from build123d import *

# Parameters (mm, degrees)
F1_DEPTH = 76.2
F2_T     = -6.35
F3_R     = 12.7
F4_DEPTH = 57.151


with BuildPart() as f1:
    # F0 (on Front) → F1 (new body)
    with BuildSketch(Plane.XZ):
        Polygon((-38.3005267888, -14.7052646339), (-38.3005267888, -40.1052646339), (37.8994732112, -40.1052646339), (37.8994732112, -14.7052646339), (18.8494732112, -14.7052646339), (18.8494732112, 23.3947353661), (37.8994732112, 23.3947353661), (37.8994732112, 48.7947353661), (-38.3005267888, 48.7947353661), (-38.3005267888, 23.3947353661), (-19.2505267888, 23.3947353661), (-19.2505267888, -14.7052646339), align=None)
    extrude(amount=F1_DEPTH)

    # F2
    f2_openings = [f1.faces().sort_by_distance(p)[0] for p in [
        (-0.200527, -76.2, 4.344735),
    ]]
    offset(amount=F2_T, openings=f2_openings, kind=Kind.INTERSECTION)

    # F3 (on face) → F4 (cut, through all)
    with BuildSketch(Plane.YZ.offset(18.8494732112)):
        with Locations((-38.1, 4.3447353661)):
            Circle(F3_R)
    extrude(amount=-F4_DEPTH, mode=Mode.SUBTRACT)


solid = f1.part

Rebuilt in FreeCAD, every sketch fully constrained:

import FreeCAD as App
import Part
import Sketcher
Q = App.Units.Quantity


def faces_at(feature, points):
    """Names of the faces that lie closest to the given points."""
    faces = feature.Shape.Faces
    near = lambda p: min(range(len(faces)), key=lambda i: faces[i].distToShape(Part.Vertex(*p))[0])
    return sorted({f"Face{near(p) + 1}" for p in points})

doc = App.newDocument("Part")
body = doc.addObject("PartDesign::Body", "Body")

# Sketch on XZ plane
sketch1 = doc.addObject("Sketcher::SketchObject", "Sketch")
body.addObject(sketch1)
sketch1.AttachmentSupport = (doc.XZ_Plane, [""])
sketch1.MapMode = "FlatFace"
sketch1.addGeometry(Part.LineSegment(App.Vector(-38.300527, -14.705265, 0), App.Vector(-38.300527, -40.105265, 0)), False)
sketch1.addGeometry(Part.LineSegment(App.Vector(-38.300527, -40.105265, 0), App.Vector(37.899473, -40.105265, 0)), False)
sketch1.addGeometry(Part.LineSegment(App.Vector(37.899473, -40.105265, 0), App.Vector(37.899473, -14.705265, 0)), False)
sketch1.addGeometry(Part.LineSegment(App.Vector(37.899473, -14.705265, 0), App.Vector(18.849473, -14.705265, 0)), False)
sketch1.addGeometry(Part.LineSegment(App.Vector(18.849473, -14.705265, 0), App.Vector(18.849473, 23.394735, 0)), False)
sketch1.addGeometry(Part.LineSegment(App.Vector(18.849473, 23.394735, 0), App.Vector(37.899473, 23.394735, 0)), False)
sketch1.addGeometry(Part.LineSegment(App.Vector(37.899473, 23.394735, 0), App.Vector(37.899473, 48.794735, 0)), False)
sketch1.addGeometry(Part.LineSegment(App.Vector(37.899473, 48.794735, 0), App.Vector(-38.300527, 48.794735, 0)), False)
sketch1.addGeometry(Part.LineSegment(App.Vector(-38.300527, 48.794735, 0), App.Vector(-38.300527, 23.394735, 0)), False)
sketch1.addGeometry(Part.LineSegment(App.Vector(-38.300527, 23.394735, 0), App.Vector(-19.250527, 23.394735, 0)), False)
sketch1.addGeometry(Part.LineSegment(App.Vector(-19.250527, 23.394735, 0), App.Vector(-19.250527, -14.705265, 0)), False)
sketch1.addGeometry(Part.LineSegment(App.Vector(-19.250527, -14.705265, 0), App.Vector(-38.300527, -14.705265, 0)), False)
sketch1.addConstraint(Sketcher.Constraint("Coincident", 0, 2, 1, 1))
sketch1.addConstraint(Sketcher.Constraint("Coincident", 1, 2, 2, 1))
sketch1.addConstraint(Sketcher.Constraint("Coincident", 2, 2, 3, 1))
sketch1.addConstraint(Sketcher.Constraint("Coincident", 3, 2, 4, 1))
sketch1.addConstraint(Sketcher.Constraint("Coincident", 4, 2, 5, 1))
sketch1.addConstraint(Sketcher.Constraint("Coincident", 5, 2, 6, 1))
sketch1.addConstraint(Sketcher.Constraint("Coincident", 6, 2, 7, 1))
sketch1.addConstraint(Sketcher.Constraint("Coincident", 7, 2, 8, 1))
sketch1.addConstraint(Sketcher.Constraint("Coincident", 8, 2, 9, 1))
sketch1.addConstraint(Sketcher.Constraint("Coincident", 9, 2, 10, 1))
sketch1.addConstraint(Sketcher.Constraint("Coincident", 10, 2, 11, 1))
sketch1.addConstraint(Sketcher.Constraint("Coincident", 11, 2, 0, 1))
sketch1.addConstraint(Sketcher.Constraint("Vertical", 0))
sketch1.addConstraint(Sketcher.Constraint("Horizontal", 1))
sketch1.addConstraint(Sketcher.Constraint("Vertical", 2))
sketch1.addConstraint(Sketcher.Constraint("Horizontal", 3))
sketch1.addConstraint(Sketcher.Constraint("Vertical", 4))
sketch1.addConstraint(Sketcher.Constraint("Horizontal", 5))
sketch1.addConstraint(Sketcher.Constraint("Vertical", 6))
sketch1.addConstraint(Sketcher.Constraint("Horizontal", 7))
sketch1.addConstraint(Sketcher.Constraint("Vertical", 8))
sketch1.addConstraint(Sketcher.Constraint("Horizontal", 9))
sketch1.addConstraint(Sketcher.Constraint("Vertical", 10))
sketch1.addConstraint(Sketcher.Constraint("Horizontal", 11))
sketch1.addConstraint(Sketcher.Constraint("Horizontal", 5, 2, 8, 2))
sketch1.addConstraint(Sketcher.Constraint("Horizontal", 3, 2, 10, 2))
sketch1.addConstraint(Sketcher.Constraint("Vertical", 2, 2, 5, 2))
sketch1.addConstraint(Sketcher.Constraint("Vertical", 0, 2, 7, 2))
sketch1.addConstraint(Sketcher.Constraint("Equal", 5, 9))
sketch1.addConstraint(Sketcher.Constraint("Equal", 2, 6))
sketch1.addConstraint(Sketcher.Constraint("DistanceX", 1, 1, 1, 2, Q("3 in")))
sketch1.addConstraint(Sketcher.Constraint("DistanceY", 0, 2, 0, 1, Q("1 in")))
sketch1.addConstraint(Sketcher.Constraint("DistanceY", 4, 1, 4, 2, Q("1.5 in")))
sketch1.addConstraint(Sketcher.Constraint("DistanceX", 3, 2, 3, 1, Q("0.75 in")))
sketch1.addConstraint(Sketcher.Constraint("DistanceX", 0, 2, -1, 1, 38.300527))
sketch1.addConstraint(Sketcher.Constraint("DistanceY", 0, 2, -1, 1, 40.105265))
pad1 = doc.addObject("PartDesign::Pad", "Pad")
body.addObject(pad1)
pad1.Profile = sketch1
pad1.Length = Q("3 in")
doc.recompute()

thickness = doc.addObject("PartDesign::Thickness", "Thickness")
body.addObject(thickness)
thickness.Base = (pad1, faces_at(pad1, [(-0.201, -76.2, 4.345)]))
thickness.Value = Q("0.25 in")
thickness.Reversed = True
thickness.Join = "Intersection"

# Sketch on YZ plane
sketch2 = doc.addObject("Sketcher::SketchObject", "Sketch001")
body.addObject(sketch2)
sketch2.AttachmentSupport = (doc.YZ_Plane, [""])
sketch2.MapMode = "FlatFace"
sketch2.AttachmentOffset = App.Placement(App.Vector(0, 0, 18.849473), App.Rotation())
sketch2.addGeometry(Part.Circle(App.Vector(-38.1, 4.344735, 0), App.Vector(0, 0, 1), 12.7), False)
sketch2.addConstraint(Sketcher.Constraint("Diameter", 0, Q("1 in")))
sketch2.addConstraint(Sketcher.Constraint("DistanceX", 0, 3, -1, 1, Q("1.5 in")))
sketch2.addConstraint(Sketcher.Constraint("DistanceY", -1, 1, 0, 3, 4.344735))
pocket1 = doc.addObject("PartDesign::Pocket", "Pocket")
body.addObject(pocket1)
pocket1.Profile = sketch2
pocket1.Type = "ThroughAll"

doc.recompute()
